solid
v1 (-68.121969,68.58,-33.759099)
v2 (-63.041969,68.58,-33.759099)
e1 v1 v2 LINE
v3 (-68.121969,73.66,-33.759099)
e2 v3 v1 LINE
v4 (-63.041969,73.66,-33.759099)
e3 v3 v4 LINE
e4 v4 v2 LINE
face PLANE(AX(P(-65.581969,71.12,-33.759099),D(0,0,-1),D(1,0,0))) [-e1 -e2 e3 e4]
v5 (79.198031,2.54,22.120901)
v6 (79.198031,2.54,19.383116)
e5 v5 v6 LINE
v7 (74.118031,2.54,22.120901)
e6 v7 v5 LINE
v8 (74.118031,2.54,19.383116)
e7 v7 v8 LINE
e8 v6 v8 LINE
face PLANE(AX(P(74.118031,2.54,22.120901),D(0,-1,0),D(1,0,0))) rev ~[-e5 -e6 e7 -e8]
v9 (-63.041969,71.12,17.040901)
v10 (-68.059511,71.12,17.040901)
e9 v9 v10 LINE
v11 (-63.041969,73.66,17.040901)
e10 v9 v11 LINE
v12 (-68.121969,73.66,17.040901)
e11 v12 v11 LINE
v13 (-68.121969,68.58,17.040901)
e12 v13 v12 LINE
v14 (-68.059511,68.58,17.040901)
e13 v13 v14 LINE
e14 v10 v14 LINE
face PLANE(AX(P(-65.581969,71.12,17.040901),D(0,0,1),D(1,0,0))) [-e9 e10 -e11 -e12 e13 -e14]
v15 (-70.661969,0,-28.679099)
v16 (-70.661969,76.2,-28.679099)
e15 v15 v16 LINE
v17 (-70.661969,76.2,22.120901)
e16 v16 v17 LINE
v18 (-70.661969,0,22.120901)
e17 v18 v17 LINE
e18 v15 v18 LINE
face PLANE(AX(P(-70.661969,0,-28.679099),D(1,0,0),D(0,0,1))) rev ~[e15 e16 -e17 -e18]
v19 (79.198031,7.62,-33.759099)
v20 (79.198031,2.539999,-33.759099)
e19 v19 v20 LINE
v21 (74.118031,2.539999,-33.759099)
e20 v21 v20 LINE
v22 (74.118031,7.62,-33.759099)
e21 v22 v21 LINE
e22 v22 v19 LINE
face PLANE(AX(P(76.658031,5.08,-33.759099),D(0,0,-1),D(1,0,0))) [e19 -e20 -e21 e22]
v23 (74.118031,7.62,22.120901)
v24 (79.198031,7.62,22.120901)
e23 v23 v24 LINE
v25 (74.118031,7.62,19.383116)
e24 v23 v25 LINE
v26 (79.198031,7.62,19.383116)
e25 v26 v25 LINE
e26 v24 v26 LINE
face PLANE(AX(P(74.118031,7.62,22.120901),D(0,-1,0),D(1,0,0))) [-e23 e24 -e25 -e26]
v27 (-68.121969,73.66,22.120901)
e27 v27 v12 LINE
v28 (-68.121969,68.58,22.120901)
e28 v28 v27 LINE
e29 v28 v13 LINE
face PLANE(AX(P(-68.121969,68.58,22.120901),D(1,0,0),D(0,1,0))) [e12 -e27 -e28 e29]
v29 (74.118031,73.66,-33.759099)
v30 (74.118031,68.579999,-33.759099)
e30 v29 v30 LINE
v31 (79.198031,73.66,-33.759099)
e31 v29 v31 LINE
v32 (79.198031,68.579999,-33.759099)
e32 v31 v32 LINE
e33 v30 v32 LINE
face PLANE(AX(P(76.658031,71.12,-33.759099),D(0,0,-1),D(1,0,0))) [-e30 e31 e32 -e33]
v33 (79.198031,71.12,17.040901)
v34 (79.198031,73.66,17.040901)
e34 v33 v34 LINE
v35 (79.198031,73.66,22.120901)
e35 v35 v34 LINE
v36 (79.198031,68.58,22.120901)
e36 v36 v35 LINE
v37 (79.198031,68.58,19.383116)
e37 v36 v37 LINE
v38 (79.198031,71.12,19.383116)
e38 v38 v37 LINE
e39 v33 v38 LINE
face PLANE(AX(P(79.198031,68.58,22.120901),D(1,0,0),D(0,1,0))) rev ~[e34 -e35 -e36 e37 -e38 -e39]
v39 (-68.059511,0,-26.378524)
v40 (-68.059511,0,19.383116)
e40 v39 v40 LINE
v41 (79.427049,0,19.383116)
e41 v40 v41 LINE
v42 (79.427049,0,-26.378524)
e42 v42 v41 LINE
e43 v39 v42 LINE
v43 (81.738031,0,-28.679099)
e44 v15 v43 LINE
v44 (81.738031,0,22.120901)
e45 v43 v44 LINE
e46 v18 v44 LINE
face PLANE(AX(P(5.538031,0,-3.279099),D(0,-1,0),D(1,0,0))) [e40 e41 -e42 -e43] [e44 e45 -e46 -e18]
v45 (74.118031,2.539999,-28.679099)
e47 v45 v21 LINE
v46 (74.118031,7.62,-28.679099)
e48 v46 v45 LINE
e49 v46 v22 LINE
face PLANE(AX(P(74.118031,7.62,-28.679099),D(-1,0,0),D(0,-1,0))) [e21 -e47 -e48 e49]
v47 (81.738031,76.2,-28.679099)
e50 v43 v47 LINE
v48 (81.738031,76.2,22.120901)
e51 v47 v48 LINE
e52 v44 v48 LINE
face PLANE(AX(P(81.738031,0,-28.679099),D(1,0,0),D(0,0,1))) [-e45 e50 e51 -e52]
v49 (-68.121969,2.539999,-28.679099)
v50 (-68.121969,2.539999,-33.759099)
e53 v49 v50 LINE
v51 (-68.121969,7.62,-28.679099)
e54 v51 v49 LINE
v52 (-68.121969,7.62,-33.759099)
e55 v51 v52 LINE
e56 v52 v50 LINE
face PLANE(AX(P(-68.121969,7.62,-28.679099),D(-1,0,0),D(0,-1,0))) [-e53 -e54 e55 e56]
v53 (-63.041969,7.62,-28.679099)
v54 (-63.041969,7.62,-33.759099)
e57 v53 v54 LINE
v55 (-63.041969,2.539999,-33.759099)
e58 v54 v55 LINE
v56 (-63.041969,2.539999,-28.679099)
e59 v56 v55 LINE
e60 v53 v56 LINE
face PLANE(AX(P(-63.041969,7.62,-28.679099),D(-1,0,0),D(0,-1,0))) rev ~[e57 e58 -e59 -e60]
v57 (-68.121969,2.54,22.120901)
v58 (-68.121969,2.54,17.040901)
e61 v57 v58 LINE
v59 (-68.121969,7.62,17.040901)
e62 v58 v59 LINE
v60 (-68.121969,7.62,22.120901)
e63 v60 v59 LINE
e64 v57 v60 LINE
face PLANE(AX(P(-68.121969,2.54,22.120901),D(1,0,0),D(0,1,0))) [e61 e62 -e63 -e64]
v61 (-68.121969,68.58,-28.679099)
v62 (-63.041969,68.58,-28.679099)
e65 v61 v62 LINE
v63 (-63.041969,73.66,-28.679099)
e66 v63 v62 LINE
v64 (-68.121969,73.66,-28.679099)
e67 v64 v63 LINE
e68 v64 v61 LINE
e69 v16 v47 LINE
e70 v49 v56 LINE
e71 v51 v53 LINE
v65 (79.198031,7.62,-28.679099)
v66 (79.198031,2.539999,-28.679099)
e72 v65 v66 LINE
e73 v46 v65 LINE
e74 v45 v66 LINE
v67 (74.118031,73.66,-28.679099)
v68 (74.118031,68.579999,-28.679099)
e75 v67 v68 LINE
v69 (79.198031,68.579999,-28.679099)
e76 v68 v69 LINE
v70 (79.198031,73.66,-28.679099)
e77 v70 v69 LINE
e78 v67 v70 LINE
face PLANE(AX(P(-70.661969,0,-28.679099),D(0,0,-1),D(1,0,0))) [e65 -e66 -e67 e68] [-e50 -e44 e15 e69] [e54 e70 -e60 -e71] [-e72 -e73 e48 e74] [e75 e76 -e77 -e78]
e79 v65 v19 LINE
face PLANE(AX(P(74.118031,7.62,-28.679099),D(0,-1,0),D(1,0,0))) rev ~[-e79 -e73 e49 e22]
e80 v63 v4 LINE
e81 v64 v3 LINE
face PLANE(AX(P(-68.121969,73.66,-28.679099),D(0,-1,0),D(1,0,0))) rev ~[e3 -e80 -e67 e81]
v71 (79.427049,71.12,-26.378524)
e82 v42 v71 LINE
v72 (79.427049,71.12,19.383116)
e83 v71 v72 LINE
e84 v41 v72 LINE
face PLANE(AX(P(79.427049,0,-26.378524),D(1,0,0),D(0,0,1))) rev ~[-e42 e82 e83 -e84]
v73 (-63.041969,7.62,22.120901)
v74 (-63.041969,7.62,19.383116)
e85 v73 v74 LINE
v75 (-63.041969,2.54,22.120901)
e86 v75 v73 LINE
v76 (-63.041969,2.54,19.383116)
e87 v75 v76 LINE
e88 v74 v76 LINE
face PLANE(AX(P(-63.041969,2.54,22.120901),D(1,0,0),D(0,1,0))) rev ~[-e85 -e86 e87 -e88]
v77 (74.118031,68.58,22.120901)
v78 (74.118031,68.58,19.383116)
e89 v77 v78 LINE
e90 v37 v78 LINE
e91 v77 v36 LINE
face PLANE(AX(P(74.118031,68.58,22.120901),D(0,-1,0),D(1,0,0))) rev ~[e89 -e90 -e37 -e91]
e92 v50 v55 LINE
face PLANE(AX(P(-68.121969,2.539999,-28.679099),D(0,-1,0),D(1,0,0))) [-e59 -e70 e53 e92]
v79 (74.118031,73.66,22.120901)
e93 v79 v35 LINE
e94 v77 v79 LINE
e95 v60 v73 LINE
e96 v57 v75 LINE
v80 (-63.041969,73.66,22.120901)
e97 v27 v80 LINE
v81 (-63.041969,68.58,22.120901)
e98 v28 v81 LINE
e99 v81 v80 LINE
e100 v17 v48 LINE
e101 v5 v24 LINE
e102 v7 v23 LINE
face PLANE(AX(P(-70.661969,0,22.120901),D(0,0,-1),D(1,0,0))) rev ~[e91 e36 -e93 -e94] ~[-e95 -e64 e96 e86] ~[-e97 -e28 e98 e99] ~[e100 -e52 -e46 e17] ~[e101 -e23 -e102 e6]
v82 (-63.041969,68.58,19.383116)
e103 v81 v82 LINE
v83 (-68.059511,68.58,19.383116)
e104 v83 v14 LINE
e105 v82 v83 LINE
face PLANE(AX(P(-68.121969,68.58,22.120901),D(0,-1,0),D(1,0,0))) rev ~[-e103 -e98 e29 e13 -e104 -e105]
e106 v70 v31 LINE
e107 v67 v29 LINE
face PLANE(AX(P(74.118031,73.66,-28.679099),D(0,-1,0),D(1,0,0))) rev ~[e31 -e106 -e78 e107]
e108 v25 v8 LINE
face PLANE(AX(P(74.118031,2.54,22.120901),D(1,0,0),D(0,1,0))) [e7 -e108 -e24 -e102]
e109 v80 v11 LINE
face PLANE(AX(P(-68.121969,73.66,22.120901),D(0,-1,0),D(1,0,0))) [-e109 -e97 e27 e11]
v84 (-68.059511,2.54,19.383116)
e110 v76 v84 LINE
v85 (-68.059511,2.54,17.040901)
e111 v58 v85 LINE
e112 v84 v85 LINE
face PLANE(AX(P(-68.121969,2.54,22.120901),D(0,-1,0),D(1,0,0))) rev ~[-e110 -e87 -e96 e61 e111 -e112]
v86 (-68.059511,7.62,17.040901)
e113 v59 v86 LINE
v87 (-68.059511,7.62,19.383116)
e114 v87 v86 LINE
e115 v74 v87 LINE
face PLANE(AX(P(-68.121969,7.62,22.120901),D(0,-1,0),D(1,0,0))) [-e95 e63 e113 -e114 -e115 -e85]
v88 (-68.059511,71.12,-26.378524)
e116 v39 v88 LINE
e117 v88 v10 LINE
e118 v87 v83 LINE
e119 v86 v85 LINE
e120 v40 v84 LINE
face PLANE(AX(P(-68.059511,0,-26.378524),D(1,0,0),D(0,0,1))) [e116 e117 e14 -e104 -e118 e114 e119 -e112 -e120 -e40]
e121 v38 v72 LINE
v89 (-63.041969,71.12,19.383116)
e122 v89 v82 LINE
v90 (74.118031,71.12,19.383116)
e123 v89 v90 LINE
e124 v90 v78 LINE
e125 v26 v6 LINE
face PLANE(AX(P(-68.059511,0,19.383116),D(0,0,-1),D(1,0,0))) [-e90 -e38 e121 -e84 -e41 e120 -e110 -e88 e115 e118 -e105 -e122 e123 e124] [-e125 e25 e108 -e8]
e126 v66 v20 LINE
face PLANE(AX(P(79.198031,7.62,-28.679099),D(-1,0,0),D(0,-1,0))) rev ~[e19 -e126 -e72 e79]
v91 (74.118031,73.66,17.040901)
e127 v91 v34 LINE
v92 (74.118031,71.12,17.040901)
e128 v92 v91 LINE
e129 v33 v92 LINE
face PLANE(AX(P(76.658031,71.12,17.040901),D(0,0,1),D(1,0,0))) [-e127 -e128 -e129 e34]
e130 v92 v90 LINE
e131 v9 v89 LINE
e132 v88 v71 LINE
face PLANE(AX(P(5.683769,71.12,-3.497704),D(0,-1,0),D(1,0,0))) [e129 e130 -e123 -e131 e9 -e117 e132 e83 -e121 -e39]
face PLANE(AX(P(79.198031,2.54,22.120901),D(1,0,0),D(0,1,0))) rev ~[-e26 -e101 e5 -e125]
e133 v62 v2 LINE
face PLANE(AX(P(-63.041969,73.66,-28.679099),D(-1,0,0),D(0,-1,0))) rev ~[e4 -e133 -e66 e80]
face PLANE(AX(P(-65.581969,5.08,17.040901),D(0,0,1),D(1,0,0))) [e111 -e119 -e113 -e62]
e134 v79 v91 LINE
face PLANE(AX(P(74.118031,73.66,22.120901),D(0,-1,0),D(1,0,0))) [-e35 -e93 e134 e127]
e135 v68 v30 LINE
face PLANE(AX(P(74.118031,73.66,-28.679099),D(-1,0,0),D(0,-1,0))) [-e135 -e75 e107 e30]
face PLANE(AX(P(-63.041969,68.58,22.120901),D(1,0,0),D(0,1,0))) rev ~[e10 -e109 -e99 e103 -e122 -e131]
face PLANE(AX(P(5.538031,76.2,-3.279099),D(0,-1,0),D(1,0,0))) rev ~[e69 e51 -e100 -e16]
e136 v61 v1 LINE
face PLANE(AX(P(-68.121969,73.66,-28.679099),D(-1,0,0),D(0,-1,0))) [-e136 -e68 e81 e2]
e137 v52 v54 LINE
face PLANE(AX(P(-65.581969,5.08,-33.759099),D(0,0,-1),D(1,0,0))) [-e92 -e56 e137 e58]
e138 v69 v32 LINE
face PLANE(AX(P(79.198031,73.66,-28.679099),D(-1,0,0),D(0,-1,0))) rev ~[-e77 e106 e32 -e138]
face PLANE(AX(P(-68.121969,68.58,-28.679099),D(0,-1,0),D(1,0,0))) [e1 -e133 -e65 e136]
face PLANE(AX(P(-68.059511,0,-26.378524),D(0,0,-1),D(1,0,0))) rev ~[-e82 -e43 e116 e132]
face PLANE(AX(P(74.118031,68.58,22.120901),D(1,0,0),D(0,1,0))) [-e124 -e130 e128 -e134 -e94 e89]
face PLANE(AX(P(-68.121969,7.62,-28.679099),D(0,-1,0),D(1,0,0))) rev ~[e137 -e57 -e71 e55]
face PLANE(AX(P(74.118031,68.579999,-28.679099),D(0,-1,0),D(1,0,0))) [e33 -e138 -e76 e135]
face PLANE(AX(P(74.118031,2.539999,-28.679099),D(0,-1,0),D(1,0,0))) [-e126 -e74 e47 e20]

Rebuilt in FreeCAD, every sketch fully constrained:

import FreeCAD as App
import Part
import Sketcher
from FreeCAD import Vector
Q = App.Units.Quantity


def add_polygon(sketch, points):
    """Adds a closed chain of lines whose ends are joined by coincident constraints."""
    first, n = sketch.GeometryCount, len(points)
    for a, b in zip(points, points[1:] + points[:1]):
        sketch.addGeometry(Part.LineSegment(App.Vector(*a, 0), App.Vector(*b, 0)), False)
    for i in range(n):
        sketch.addConstraint(Sketcher.Constraint("Coincident", first + i, 2, first + (i + 1) % n, 1))

doc = App.newDocument("Part")
body = doc.addObject("PartDesign::Body", "Body")

# Sketch on XZ plane
sketch1 = doc.addObject("Sketcher::SketchObject", "Sketch")
body.addObject(sketch1)
sketch1.AttachmentSupport = (doc.XZ_Plane, [""])
sketch1.MapMode = "FlatFace"
add_polygon(sketch1, [(-71, 22), (-71, -29), (82, -29), (82, 22)])  # lines 0-3
sketch1.addConstraint([
    Sketcher.Constraint("Vertical", 0),
    Sketcher.Constraint("Horizontal", 1),
    Sketcher.Constraint("Vertical", 2),
    Sketcher.Constraint("Horizontal", 3),
    Sketcher.Constraint("DistanceX", 1, 1, 1, 2, Q("6 in")),
    Sketcher.Constraint("DistanceY", 0, 2, 0, 1, Q("2 in")),
    Sketcher.Constraint("DistanceY", 0, 2, -1, 1, 28.679099),
    Sketcher.Constraint("DistanceX", 0, 2, -1, 1, 70.661969),
])
pad1 = doc.addObject("PartDesign::Pad", "Pad")
body.addObject(pad1)
pad1.Profile = sketch1
pad1.Length = Q("3 in")
pad1.Reversed = True

# Sketch on XZ plane
sketch2 = doc.addObject("Sketcher::SketchObject", "Sketch001")
body.addObject(sketch2)
sketch2.AttachmentSupport = (doc.XZ_Plane, [""])
sketch2.MapMode = "FlatFace"
add_polygon(sketch2, [(-68, 19), (-68, -26), (79, -26), (79, 19)])  # lines 0-3
sketch2.addConstraint([
    Sketcher.Constraint("Vertical", 0),
    Sketcher.Constraint("Horizontal", 1),
    Sketcher.Constraint("Vertical", 2),
    Sketcher.Constraint("Horizontal", 3),
    Sketcher.Constraint("DistanceX", 1, 1, 1, 2, 147.48656),
    Sketcher.Constraint("DistanceY", 0, 2, 0, 1, 45.76164),
    Sketcher.Constraint("DistanceX", 0, 2, -1, 1, 68.059511),
    Sketcher.Constraint("DistanceY", 0, 2, -1, 1, 26.378524),
])
pocket1 = doc.addObject("PartDesign::Pocket", "Pocket")
body.addObject(pocket1)
pocket1.Profile = sketch2
pocket1.Length = Q("2.8 in")

# Sketch on XY plane
sketch3 = doc.addObject("Sketcher::SketchObject", "Sketch002")
body.addObject(sketch3)
sketch3.AttachmentSupport = (doc.XY_Plane, [""])
sketch3.MapMode = "FlatFace"
sketch3.AttachmentOffset = App.Placement(Vector(0, 0, -28.679099), App.Rotation())
add_polygon(sketch3, [(-68, 3), (-68, 8), (-63, 8), (-63, 3)])  # lines 0-3
add_polygon(sketch3, [(74, 3), (74, 8), (79, 8), (79, 3)])  # lines 4-7
add_polygon(sketch3, [(74, 69), (74, 74), (79, 74), (79, 69)])  # lines 8-11
add_polygon(sketch3, [(-68, 69), (-68, 74), (-63, 74), (-63, 69)])  # lines 12-15
sketch3.addConstraint([
    Sketcher.Constraint("Vertical", 0),
    Sketcher.Constraint("Horizontal", 1),
    Sketcher.Constraint("Vertical", 2),
    Sketcher.Constraint("Horizontal", 3),
    Sketcher.Constraint("Vertical", 4),
    Sketcher.Constraint("Horizontal", 5),
    Sketcher.Constraint("Vertical", 6),
    Sketcher.Constraint("Horizontal", 7),
    Sketcher.Constraint("Vertical", 8),
    Sketcher.Constraint("Horizontal", 9),
    Sketcher.Constraint("Vertical", 10),
    Sketcher.Constraint("Horizontal", 11),
    Sketcher.Constraint("Vertical", 12),
    Sketcher.Constraint("Horizontal", 13),
    Sketcher.Constraint("Vertical", 14),
    Sketcher.Constraint("Horizontal", 15),
    Sketcher.Constraint("Horizontal", 1, 2, 4, 2),
    Sketcher.Constraint("Horizontal", 3, 2, 6, 2),
    Sketcher.Constraint("Horizontal", 9, 2, 12, 2),
    Sketcher.Constraint("Horizontal", 11, 2, 14, 2),
    Sketcher.Constraint("Vertical", 7, 2, 8, 2),
    Sketcher.Constraint("Vertical", 6, 2, 9, 2),
    Sketcher.Constraint("Vertical", 3, 2, 12, 2),
    Sketcher.Constraint("Vertical", 2, 2, 13, 2),
    Sketcher.Constraint("Equal", 3, 5),
    Sketcher.Constraint("Equal", 15, 0),
    Sketcher.Constraint("Equal", 6, 8),
    Sketcher.Constraint("DistanceX", 1, 1, 1, 2, Q("0.2 in")),
    Sketcher.Constraint("DistanceY", -1, 1, 0, 2, Q("0.3 in")),
    Sketcher.Constraint("DistanceY", -1, 1, 8, 2, Q("2.9 in")),
    Sketcher.Constraint("DistanceX", 1, 2, 4, 2, Q("5.4 in")),
    Sketcher.Constraint("DistanceX", 0, 2, -1, 1, 68.121969),
])
pad2 = doc.addObject("PartDesign::Pad", "Pad001")
body.addObject(pad2)
pad2.Profile = sketch3
pad2.Length = Q("0.2 in")
pad2.Reversed = True

# Sketch on XY plane
sketch4 = doc.addObject("Sketcher::SketchObject", "Sketch003")
body.addObject(sketch4)
sketch4.AttachmentSupport = (doc.XY_Plane, [""])
sketch4.MapMode = "FlatFace"
sketch4.AttachmentOffset = App.Placement(Vector(0, 0, 22.120901), App.Rotation())
add_polygon(sketch4, [(-68, 74), (-68, 69), (-63, 69), (-63, 74)])  # lines 0-3
add_polygon(sketch4, [(-68, 8), (-68, 3), (-63, 3), (-63, 8)])  # lines 4-7
add_polygon(sketch4, [(74, 74), (74, 69), (79, 69), (79, 74)])  # lines 8-11
add_polygon(sketch4, [(74, 8), (74, 3), (79, 3), (79, 8)])  # lines 12-15
sketch4.addConstraint([
    Sketcher.Constraint("Vertical", 0),
    Sketcher.Constraint("Horizontal", 1),
    Sketcher.Constraint("Vertical", 2),
    Sketcher.Constraint("Horizontal", 3),
    Sketcher.Constraint("Vertical", 4),
    Sketcher.Constraint("Horizontal", 5),
    Sketcher.Constraint("Vertical", 6),
    Sketcher.Constraint("Horizontal", 7),
    Sketcher.Constraint("Vertical", 8),
    Sketcher.Constraint("Horizontal", 9),
    Sketcher.Constraint("Vertical", 10),
    Sketcher.Constraint("Horizontal", 11),
    Sketcher.Constraint("Vertical", 12),
    Sketcher.Constraint("Horizontal", 13),
    Sketcher.Constraint("Vertical", 14),
    Sketcher.Constraint("Horizontal", 15),
    Sketcher.Constraint("Horizontal", 1, 2, 8, 2),
    Sketcher.Constraint("Horizontal", 3, 2, 10, 2),
    Sketcher.Constraint("Horizontal", 5, 2, 12, 2),
    Sketcher.Constraint("Horizontal", 7, 2, 14, 2),
    Sketcher.Constraint("Vertical", 3, 2, 4, 2),
    Sketcher.Constraint("Vertical", 2, 2, 5, 2),
    Sketcher.Constraint("Vertical", 11, 2, 12, 2),
    Sketcher.Constraint("Vertical", 10, 2, 13, 2),
    Sketcher.Constraint("Equal", 7, 9),
    Sketcher.Constraint("Equal", 15, 0),
    Sketcher.Constraint("Equal", 2, 4),
    Sketcher.Constraint("DistanceX", 1, 1, 1, 2, Q("0.2 in")),
    Sketcher.Constraint("DistanceY", -1, 1, 0, 2, Q("2.7 in")),
    Sketcher.Constraint("DistanceY", -1, 1, 4, 2, Q("0.1 in")),
    Sketcher.Constraint("DistanceX", 1, 2, 8, 2, Q("5.4 in")),
    Sketcher.Constraint("DistanceX", 0, 2, -1, 1, 68.121969),
])
pocket2 = doc.addObject("PartDesign::Pocket", "Pocket001")
body.addObject(pocket2)
pocket2.Profile = sketch4
pocket2.Length = Q("0.2 in")

doc.recompute()
